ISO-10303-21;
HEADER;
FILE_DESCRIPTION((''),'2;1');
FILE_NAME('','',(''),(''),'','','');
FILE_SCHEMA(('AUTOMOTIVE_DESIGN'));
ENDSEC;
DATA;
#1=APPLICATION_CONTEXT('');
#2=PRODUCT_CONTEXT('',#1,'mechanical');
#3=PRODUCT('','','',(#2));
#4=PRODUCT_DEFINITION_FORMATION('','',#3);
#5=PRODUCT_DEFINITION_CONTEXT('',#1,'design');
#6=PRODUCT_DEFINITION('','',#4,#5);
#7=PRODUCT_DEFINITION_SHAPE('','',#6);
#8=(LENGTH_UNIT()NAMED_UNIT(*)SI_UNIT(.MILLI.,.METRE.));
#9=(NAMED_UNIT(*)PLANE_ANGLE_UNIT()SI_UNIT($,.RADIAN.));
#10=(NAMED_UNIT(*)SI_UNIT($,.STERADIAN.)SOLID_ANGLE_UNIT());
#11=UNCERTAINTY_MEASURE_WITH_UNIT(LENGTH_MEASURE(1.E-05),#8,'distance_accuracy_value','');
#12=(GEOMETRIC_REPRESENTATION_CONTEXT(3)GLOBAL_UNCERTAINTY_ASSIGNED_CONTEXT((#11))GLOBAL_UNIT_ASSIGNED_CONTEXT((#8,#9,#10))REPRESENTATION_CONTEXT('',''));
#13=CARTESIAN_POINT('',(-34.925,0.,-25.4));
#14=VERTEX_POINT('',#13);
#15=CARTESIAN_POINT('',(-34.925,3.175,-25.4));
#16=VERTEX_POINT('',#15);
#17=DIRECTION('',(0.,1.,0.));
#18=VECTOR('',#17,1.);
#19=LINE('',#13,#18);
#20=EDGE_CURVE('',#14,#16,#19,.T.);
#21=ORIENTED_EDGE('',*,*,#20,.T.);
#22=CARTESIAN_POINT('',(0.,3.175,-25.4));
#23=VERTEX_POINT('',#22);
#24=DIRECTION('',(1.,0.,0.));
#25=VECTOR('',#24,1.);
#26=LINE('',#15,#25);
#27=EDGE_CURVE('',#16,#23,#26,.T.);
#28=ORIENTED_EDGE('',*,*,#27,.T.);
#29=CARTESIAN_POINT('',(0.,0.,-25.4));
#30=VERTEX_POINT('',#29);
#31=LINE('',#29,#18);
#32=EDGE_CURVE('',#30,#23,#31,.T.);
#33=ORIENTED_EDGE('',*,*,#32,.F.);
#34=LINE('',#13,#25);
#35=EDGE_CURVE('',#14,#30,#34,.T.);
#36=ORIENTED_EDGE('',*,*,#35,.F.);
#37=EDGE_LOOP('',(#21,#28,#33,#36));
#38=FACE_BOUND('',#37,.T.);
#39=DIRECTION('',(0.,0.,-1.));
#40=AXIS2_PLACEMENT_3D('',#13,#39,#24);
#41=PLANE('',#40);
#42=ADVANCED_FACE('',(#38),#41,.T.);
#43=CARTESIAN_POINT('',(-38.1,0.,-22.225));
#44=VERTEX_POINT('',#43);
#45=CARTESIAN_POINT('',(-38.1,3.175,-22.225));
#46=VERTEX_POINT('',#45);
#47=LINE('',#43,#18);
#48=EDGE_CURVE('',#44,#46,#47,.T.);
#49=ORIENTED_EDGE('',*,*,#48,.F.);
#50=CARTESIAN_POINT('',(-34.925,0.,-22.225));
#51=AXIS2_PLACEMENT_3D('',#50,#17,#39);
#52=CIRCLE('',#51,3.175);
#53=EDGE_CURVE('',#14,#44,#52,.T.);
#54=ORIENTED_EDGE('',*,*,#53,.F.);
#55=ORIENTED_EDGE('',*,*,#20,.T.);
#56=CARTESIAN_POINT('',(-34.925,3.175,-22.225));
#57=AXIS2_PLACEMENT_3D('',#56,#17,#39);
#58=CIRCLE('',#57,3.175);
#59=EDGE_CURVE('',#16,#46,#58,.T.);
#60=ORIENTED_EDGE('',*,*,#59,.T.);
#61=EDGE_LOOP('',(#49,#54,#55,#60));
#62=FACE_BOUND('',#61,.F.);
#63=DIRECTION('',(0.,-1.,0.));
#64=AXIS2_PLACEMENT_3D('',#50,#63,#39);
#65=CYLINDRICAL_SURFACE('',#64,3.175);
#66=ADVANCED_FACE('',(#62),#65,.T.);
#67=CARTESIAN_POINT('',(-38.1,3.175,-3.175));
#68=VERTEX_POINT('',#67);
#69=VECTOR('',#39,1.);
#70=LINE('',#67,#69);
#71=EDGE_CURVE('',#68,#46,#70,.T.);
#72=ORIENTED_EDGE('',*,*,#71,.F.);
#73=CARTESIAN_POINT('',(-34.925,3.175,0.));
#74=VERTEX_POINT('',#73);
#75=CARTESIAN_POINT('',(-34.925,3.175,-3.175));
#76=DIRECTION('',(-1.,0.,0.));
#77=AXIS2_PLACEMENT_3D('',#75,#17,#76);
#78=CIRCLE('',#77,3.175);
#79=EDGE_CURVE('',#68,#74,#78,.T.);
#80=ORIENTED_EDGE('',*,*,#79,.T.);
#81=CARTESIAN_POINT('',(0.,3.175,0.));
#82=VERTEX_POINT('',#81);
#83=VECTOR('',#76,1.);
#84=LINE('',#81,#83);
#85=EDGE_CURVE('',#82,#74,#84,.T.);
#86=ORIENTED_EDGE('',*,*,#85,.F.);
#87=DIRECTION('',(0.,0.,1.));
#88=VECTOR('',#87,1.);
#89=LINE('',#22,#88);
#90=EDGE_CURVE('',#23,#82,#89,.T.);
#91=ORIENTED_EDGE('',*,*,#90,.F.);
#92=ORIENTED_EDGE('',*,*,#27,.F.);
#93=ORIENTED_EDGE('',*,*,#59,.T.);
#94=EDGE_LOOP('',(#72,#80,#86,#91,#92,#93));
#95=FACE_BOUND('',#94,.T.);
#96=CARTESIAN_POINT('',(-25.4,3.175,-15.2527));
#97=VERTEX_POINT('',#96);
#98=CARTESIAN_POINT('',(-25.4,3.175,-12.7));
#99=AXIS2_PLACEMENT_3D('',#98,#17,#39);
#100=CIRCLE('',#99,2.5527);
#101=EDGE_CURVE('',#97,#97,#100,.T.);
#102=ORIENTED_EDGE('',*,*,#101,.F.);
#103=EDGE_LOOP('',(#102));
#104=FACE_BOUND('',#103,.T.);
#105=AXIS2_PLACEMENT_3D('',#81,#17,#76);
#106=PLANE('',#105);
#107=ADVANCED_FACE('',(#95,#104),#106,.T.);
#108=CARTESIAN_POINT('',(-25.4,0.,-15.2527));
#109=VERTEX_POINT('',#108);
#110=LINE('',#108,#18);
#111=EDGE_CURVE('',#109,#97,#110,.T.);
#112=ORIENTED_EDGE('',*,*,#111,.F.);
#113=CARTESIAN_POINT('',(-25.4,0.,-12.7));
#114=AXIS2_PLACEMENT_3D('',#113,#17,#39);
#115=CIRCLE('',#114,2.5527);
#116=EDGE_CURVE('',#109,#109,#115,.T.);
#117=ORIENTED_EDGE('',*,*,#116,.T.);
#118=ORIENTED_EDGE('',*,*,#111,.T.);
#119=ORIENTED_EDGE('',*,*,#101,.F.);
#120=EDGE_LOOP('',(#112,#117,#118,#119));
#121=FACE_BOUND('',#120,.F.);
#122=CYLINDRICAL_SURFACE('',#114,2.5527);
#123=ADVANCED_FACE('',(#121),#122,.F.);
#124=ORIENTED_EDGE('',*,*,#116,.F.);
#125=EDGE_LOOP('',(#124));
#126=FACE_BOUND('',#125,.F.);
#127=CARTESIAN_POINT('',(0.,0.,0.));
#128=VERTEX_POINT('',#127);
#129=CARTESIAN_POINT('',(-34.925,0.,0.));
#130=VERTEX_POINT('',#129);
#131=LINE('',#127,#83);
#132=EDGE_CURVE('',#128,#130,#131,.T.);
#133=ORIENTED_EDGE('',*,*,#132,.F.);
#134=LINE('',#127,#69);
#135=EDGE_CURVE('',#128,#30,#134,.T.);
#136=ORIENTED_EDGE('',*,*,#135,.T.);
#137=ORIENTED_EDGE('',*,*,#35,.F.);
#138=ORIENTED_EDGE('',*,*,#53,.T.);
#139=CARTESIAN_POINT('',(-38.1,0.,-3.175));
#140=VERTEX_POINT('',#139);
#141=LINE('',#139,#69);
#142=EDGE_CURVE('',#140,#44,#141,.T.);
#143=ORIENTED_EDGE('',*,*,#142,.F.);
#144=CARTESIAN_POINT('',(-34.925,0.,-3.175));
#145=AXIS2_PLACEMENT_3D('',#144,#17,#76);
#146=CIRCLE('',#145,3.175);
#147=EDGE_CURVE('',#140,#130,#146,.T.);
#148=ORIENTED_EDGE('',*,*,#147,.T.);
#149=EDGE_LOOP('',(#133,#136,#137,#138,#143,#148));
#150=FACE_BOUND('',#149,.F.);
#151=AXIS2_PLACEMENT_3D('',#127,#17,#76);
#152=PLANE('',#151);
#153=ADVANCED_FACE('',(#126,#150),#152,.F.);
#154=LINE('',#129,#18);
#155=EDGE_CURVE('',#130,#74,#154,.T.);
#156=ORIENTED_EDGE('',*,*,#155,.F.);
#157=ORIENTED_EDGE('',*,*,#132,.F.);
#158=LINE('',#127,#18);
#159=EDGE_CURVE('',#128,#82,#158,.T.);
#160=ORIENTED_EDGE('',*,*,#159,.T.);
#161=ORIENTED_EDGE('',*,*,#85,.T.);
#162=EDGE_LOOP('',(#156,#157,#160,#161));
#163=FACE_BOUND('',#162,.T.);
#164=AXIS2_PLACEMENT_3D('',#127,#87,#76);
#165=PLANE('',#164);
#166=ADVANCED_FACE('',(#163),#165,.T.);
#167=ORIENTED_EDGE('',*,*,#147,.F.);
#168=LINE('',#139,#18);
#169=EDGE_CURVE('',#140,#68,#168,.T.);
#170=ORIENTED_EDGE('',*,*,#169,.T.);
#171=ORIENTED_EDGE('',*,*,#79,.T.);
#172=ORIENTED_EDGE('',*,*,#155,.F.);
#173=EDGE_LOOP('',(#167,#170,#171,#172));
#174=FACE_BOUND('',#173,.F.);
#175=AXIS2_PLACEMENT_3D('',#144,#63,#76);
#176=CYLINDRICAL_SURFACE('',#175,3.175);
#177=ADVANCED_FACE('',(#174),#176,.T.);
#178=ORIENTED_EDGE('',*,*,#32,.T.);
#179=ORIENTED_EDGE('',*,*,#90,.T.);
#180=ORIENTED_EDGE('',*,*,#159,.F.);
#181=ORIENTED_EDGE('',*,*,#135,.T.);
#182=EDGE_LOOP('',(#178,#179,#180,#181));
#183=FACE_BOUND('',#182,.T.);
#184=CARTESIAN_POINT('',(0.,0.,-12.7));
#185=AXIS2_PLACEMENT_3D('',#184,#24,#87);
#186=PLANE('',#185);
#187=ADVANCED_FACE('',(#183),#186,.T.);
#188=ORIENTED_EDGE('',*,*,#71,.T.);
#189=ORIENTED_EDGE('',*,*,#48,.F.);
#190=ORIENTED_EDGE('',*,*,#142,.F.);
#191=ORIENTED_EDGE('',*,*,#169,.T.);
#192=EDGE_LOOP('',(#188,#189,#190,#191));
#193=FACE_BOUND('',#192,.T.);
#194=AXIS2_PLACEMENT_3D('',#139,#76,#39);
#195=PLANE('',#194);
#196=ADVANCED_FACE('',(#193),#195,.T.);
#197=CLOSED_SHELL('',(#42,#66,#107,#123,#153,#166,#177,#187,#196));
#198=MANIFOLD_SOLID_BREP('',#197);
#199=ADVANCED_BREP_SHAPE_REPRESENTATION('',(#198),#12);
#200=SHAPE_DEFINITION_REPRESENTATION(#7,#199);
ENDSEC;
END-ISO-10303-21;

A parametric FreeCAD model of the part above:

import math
import FreeCAD as App
import Part
import Sketcher

V = App.Vector
Q = App.Units.Quantity

doc = App.newDocument("Part")
body = doc.addObject("PartDesign::Body", "Body")

# Sketch on XZ plane
sketch1 = body.newObject("Sketcher::SketchObject", "Sketch")
sketch1.AttachmentSupport = (doc.getObject("XZ_Plane"), [""])
sketch1.MapMode = "FlatFace"
sketch1.addGeometry(Part.LineSegment(V(-34.925, 0, 0), V(0, 0, 0)), False)
sketch1.addGeometry(Part.LineSegment(V(0, 0, 0), V(0, -25.4, 0)), False)
sketch1.addGeometry(Part.LineSegment(V(0, -25.4, 0), V(-34.925, -25.4, 0)), False)
sketch1.addGeometry(Part.ArcOfCircle(Part.Circle(V(-34.925, -22.225, 0), V(0, 0, 1), 3.175), math.radians(180), math.radians(270)), False)
sketch1.addGeometry(Part.LineSegment(V(-38.1, -22.225, 0), V(-38.1, -3.175, 0)), False)
sketch1.addGeometry(Part.ArcOfCircle(Part.Circle(V(-34.925, -3.175, 0), V(0, 0, 1), 3.175), math.radians(90), math.radians(180)), False)
sketch1.addConstraint(Sketcher.Constraint("Coincident", 0, 2, 1, 1))
sketch1.addConstraint(Sketcher.Constraint("Coincident", 1, 2, 2, 1))
sketch1.addConstraint(Sketcher.Constraint("Tangent", 2, 2, 3, 2))
sketch1.addConstraint(Sketcher.Constraint("Tangent", 3, 1, 4, 1))
sketch1.addConstraint(Sketcher.Constraint("Tangent", 4, 2, 5, 2))
sketch1.addConstraint(Sketcher.Constraint("Tangent", 5, 1, 0, 1))
sketch1.addConstraint(Sketcher.Constraint("Horizontal", 0))
sketch1.addConstraint(Sketcher.Constraint("Vertical", 1))
sketch1.addConstraint(Sketcher.Constraint("Horizontal", 2))
sketch1.addConstraint(Sketcher.Constraint("Vertical", 4))
sketch1.addConstraint(Sketcher.Constraint("Coincident", 0, 2, -1, 1))
sketch1.addConstraint(Sketcher.Constraint("Equal", 3, 5))
sketch1.addConstraint(Sketcher.Constraint("DistanceY", 1, 2, 1, 1, Q("1 in")))
sketch1.addConstraint(Sketcher.Constraint("Radius", 3, Q("0.125 in")))
sketch1.addConstraint(Sketcher.Constraint("DistanceX", 3, 1, -1, 1, Q("1.5 in")))
pad1 = body.newObject("PartDesign::Pad", "Pad")
pad1.Profile = sketch1
pad1.Length = Q("0.125 in")
pad1.Reversed = True

# Sketch on XZ plane
sketch2 = body.newObject("Sketcher::SketchObject", "Sketch001")
sketch2.AttachmentSupport = (doc.getObject("XZ_Plane"), [""])
sketch2.MapMode = "FlatFace"
sketch2.addGeometry(Part.Circle(V(-25.4, -12.7, 0), V(0, 0, 1), 2.5527), False)
sketch2.addConstraint(Sketcher.Constraint("Diameter", 0, Q("0.201 in")))
sketch2.addConstraint(Sketcher.Constraint("DistanceX", 0, 3, -1, 1, Q("1 in")))
sketch2.addConstraint(Sketcher.Constraint("DistanceY", 0, 3, -1, 1, Q("0.5 in")))
doc.recompute()
hole = body.newObject("PartDesign::Hole", "Hole")
hole.Profile = sketch2
hole.ThreadType = "None"
hole.Diameter = Q("0.201 in")
hole.DepthType = "ThroughAll"

doc.recompute()
